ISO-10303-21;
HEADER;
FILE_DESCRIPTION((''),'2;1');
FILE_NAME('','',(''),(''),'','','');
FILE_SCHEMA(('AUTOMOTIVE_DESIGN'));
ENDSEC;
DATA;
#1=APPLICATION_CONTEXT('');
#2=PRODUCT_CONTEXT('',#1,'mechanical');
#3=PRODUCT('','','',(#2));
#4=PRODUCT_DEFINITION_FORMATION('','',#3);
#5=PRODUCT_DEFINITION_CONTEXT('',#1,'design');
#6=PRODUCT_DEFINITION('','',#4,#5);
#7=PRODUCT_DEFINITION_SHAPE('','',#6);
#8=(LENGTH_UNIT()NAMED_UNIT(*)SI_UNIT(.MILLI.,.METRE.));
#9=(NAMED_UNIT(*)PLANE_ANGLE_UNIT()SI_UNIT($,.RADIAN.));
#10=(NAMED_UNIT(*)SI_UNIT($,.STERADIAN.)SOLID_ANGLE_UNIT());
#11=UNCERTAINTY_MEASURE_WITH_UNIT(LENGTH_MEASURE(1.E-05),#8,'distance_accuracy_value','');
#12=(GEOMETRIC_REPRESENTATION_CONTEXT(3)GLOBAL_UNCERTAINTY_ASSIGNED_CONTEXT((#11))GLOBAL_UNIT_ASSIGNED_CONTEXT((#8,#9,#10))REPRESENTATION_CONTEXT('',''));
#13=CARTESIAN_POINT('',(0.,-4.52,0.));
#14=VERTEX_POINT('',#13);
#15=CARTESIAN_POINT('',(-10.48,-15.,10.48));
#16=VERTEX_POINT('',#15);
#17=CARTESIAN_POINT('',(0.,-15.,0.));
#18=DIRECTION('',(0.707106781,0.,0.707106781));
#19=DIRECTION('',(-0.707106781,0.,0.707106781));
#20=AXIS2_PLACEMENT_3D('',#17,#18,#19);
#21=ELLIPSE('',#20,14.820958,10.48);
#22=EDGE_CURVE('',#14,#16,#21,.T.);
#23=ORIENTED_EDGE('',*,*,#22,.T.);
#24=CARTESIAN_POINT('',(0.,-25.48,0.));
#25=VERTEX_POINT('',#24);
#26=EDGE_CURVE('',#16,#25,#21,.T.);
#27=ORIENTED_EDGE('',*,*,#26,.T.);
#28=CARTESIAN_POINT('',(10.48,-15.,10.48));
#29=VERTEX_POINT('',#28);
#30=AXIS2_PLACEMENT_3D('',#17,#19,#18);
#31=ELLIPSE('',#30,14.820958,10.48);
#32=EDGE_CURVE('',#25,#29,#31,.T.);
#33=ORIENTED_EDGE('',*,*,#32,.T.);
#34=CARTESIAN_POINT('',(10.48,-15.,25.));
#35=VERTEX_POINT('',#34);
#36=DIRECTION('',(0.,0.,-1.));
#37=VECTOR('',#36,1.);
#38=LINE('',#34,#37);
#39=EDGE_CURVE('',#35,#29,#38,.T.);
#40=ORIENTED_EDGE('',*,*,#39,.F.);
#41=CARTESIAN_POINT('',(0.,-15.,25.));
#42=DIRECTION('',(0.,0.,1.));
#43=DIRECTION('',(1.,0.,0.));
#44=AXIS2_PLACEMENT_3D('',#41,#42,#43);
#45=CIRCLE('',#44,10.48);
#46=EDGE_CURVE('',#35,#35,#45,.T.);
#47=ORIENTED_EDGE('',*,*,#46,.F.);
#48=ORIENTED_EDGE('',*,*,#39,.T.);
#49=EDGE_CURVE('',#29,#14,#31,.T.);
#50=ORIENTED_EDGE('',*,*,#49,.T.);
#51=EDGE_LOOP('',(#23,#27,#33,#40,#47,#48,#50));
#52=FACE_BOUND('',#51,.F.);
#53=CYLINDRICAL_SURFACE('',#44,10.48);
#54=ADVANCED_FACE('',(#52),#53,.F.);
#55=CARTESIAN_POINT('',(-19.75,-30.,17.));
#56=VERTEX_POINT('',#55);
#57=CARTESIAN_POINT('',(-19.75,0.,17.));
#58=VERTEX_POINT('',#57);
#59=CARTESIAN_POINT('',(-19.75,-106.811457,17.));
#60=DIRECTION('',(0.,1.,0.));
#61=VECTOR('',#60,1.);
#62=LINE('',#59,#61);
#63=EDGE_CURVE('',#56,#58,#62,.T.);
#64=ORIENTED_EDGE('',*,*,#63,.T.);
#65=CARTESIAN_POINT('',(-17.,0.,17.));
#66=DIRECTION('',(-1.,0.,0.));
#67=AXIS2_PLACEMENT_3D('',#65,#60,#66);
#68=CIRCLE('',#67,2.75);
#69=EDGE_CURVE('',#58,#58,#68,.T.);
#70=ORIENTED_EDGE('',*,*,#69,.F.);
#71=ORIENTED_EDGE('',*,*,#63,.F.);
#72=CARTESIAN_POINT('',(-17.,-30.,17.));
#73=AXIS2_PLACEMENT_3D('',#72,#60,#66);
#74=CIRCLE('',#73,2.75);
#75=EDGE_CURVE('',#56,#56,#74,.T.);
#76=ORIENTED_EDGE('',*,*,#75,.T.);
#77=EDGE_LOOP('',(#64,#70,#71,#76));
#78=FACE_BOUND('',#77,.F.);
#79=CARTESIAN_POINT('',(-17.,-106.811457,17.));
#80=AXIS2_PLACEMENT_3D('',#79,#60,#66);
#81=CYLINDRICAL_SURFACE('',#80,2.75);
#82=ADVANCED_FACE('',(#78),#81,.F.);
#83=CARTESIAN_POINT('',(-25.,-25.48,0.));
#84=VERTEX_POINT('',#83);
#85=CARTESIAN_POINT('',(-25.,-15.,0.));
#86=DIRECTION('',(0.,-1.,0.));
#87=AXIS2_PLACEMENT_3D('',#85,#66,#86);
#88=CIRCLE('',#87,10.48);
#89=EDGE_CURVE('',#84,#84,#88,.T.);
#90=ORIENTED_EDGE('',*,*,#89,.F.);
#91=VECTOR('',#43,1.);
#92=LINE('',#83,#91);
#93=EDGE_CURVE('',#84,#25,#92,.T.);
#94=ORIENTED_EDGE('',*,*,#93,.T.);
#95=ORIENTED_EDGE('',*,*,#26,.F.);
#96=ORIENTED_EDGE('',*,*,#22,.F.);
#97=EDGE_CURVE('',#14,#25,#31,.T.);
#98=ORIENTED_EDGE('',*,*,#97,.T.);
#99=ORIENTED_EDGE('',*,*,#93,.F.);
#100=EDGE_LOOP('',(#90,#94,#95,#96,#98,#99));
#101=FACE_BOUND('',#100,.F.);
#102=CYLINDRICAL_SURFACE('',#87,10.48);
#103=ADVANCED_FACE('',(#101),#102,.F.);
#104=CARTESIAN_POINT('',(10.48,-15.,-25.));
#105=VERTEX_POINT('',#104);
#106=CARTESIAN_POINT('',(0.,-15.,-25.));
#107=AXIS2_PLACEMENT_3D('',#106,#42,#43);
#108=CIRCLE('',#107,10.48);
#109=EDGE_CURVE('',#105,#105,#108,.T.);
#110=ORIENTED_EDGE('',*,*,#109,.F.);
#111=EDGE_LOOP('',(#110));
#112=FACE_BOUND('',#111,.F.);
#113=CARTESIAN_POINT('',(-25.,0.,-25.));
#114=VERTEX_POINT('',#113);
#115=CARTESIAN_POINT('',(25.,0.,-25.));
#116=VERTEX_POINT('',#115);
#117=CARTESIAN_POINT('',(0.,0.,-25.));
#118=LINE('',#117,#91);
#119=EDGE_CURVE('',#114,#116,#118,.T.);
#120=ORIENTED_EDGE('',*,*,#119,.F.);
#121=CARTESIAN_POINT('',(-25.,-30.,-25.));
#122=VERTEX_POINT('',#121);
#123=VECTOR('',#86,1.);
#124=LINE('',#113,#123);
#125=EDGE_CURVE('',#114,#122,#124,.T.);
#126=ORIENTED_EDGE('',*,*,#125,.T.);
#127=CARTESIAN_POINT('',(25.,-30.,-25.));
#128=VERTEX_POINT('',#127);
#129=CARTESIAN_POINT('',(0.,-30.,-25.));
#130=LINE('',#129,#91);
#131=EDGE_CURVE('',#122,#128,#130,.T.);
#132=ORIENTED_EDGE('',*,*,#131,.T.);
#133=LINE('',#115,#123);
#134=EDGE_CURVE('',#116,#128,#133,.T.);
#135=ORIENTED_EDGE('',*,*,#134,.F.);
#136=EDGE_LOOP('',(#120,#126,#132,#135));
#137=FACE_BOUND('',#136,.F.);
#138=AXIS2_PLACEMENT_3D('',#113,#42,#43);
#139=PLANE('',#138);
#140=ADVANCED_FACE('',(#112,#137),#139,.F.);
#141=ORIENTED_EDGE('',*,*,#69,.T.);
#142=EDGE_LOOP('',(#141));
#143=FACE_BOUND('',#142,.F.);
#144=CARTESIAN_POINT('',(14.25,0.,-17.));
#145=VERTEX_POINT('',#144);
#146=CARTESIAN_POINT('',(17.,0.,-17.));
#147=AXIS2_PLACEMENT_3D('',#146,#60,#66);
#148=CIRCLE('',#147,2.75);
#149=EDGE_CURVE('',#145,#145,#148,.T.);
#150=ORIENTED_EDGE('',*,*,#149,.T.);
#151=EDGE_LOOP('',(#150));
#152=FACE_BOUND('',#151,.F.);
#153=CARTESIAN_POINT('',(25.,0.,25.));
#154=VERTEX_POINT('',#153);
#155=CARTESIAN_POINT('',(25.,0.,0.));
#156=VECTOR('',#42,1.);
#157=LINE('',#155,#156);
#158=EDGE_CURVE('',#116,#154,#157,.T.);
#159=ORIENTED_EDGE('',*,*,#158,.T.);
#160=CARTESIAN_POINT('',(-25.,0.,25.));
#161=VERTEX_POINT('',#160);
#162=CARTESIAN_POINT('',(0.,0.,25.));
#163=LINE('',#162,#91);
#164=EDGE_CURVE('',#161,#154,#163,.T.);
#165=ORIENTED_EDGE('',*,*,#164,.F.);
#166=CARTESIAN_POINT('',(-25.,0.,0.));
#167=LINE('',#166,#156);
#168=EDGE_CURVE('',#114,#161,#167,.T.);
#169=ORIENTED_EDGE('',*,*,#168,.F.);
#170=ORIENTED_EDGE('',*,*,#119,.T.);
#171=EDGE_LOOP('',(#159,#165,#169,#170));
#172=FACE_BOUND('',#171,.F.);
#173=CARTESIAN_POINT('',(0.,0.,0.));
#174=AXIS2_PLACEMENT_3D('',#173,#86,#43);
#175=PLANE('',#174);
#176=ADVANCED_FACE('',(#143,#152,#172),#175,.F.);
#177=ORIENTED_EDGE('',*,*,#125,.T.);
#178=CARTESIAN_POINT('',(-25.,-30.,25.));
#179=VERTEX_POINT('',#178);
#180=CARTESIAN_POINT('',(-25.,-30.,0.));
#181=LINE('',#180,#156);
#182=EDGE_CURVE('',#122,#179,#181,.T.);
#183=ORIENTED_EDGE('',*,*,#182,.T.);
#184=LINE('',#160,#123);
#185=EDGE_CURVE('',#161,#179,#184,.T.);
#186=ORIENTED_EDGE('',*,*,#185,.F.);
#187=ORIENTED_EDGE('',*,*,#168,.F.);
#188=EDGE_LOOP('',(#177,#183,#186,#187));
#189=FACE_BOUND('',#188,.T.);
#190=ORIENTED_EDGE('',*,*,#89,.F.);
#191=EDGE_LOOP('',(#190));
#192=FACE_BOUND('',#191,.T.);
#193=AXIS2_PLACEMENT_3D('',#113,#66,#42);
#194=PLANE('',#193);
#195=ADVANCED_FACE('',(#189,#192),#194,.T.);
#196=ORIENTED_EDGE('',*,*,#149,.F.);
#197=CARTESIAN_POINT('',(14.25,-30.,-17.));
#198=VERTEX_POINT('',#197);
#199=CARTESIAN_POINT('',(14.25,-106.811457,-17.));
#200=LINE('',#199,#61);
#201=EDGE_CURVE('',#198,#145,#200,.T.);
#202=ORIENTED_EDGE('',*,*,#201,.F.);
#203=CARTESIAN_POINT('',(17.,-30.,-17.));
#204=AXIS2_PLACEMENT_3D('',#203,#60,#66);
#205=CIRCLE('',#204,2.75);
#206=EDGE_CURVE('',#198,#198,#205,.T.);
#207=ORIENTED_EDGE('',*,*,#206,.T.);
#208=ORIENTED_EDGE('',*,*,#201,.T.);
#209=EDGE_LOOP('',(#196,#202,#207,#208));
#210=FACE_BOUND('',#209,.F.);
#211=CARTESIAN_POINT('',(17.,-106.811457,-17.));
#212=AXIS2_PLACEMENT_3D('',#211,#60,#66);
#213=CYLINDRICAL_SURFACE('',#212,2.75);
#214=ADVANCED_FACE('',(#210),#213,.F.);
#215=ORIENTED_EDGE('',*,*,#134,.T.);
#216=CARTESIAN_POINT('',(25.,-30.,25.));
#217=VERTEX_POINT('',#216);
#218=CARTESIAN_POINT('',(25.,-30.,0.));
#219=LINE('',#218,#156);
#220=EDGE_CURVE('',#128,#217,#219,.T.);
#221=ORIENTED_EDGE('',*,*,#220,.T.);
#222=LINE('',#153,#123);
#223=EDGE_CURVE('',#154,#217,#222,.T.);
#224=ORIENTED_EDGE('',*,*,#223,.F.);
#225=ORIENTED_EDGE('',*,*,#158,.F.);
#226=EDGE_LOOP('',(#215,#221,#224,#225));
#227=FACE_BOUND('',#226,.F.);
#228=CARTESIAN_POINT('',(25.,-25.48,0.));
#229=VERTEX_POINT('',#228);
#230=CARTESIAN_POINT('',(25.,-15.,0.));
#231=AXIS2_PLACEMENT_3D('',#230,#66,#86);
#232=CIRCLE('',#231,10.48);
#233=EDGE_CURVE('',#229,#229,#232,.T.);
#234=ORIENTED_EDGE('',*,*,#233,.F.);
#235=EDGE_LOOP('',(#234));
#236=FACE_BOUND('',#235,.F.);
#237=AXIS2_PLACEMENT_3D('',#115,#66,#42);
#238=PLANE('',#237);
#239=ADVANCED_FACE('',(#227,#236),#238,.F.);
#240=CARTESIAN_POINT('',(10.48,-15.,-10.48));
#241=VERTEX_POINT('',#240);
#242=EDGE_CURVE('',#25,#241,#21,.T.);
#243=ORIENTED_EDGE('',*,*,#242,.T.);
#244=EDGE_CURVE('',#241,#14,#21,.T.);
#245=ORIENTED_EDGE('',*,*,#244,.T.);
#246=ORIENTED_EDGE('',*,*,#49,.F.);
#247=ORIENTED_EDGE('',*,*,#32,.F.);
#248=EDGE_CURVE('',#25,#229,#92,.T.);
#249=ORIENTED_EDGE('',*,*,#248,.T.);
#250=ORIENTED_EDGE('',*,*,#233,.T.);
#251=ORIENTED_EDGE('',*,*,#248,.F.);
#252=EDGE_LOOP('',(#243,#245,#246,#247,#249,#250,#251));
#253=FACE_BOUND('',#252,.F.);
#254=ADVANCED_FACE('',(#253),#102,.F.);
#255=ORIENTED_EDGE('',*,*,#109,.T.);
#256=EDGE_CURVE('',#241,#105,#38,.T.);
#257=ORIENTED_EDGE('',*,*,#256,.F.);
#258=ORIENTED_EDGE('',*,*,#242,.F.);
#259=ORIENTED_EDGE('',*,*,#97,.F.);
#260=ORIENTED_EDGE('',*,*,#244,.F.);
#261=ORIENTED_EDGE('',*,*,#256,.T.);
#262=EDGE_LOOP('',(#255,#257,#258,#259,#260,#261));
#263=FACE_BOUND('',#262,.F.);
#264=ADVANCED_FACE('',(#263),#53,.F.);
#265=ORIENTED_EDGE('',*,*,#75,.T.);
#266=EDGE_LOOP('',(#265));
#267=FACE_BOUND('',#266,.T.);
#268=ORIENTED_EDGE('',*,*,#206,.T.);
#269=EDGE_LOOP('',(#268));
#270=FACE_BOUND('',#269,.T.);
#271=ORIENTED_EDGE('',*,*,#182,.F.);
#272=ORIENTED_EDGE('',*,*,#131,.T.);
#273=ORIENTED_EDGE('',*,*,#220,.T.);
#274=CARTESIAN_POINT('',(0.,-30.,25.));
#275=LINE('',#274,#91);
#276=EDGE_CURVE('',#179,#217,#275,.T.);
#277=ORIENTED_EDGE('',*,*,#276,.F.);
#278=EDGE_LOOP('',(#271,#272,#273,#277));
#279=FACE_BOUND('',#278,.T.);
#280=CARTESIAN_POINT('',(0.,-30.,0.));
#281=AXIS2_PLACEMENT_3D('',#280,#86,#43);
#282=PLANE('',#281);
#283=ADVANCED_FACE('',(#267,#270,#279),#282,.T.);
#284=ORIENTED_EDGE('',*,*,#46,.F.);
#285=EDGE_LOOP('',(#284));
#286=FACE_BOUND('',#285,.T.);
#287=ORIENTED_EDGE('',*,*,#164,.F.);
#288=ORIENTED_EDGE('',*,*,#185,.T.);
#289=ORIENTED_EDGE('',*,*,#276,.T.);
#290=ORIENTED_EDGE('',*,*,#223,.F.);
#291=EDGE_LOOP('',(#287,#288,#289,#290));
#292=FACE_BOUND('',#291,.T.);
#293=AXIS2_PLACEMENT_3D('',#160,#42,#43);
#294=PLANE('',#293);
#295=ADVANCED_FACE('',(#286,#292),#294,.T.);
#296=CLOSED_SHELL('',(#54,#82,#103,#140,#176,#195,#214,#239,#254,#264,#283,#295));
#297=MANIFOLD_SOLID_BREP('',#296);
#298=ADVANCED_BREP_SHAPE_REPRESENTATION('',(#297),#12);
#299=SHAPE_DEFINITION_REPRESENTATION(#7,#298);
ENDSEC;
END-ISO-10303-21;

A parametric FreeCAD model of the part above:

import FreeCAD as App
import Part
import Sketcher
from FreeCAD import Vector


def add_polygon(sketch, points):
    """Adds a closed chain of lines whose ends are joined by coincident constraints."""
    first, n = sketch.GeometryCount, len(points)
    for a, b in zip(points, points[1:] + points[:1]):
        sketch.addGeometry(Part.LineSegment(App.Vector(*a, 0), App.Vector(*b, 0)), False)
    for i in range(n):
        sketch.addConstraint(Sketcher.Constraint("Coincident", first + i, 2, first + (i + 1) % n, 1))

doc = App.newDocument("Part")
body = doc.addObject("PartDesign::Body", "Body")

# Sketch on XZ plane
sketch1 = body.newObject("Sketcher::SketchObject", "Sketch")
sketch1.AttachmentSupport = (doc.getObject("XZ_Plane"), [""])
sketch1.MapMode = "FlatFace"
add_polygon(sketch1, [(-25, 25), (-25, -25), (25, -25), (25, 25)])  # lines 0-3
sketch1.addConstraint([
    Sketcher.Constraint("Vertical", 0),
    Sketcher.Constraint("Horizontal", 1),
    Sketcher.Constraint("Vertical", 2),
    Sketcher.Constraint("Horizontal", 3),
    Sketcher.Constraint("Symmetric", 0, 2, 2, 2, -1, 1),
    Sketcher.Constraint("Equal", 3, 0),
    Sketcher.Constraint("DistanceX", 1, 1, 1, 2, 50.0),
])
pad1 = body.newObject("PartDesign::Pad", "Pad")
pad1.Profile = sketch1
pad1.Length = 30

# Sketch on XZ plane
sketch2 = body.newObject("Sketcher::SketchObject", "Sketch001")
sketch2.AttachmentSupport = (doc.getObject("XZ_Plane"), [""])
sketch2.MapMode = "FlatFace"
sketch2.AttachmentOffset = App.Placement(Vector(0, 0, 30), App.Rotation())
sketch2.addGeometry([
    Part.Circle(Vector(-17, 17, 0), Vector(0, 0, 1), 2.8),
    Part.Circle(Vector(17, -17, 0), Vector(0, 0, 1), 2.8),
], False)
sketch2.addConstraint([
    Sketcher.Constraint("Equal", 0, 1),
    Sketcher.Constraint("Symmetric", 0, 3, 1, 3, -1, 1),
    Sketcher.Constraint("Diameter", 0, 5.5),
    Sketcher.Constraint("DistanceX", 0, 3, -1, 1, 17.0),
    Sketcher.Constraint("DistanceY", -1, 1, 0, 3, 17.0),
])
doc.recompute()
hole = body.newObject("PartDesign::Hole", "Hole")
hole.Profile = sketch2
hole.ThreadType = "None"
hole.Diameter = 5.5
hole.DepthType = "ThroughAll"

# Sketch on XY plane
sketch3 = body.newObject("Sketcher::SketchObject", "Sketch002")
sketch3.AttachmentSupport = (doc.getObject("XY_Plane"), [""])
sketch3.MapMode = "FlatFace"
sketch3.AttachmentOffset = App.Placement(Vector(0, 0, 25), App.Rotation())
sketch3.addGeometry(Part.Circle(Vector(0, -15, 0), Vector(0, 0, 1), 10), False)
sketch3.addConstraint([
    Sketcher.Constraint("PointOnObject", 0, 3, -2),
    Sketcher.Constraint("Diameter", 0, 20.96),
    Sketcher.Constraint("DistanceY", 0, 3, -1, 1, 15.0),
])
pocket1 = body.newObject("PartDesign::Pocket", "Pocket")
pocket1.Profile = sketch3
pocket1.Type = "ThroughAll"

# Sketch on YZ plane
sketch4 = body.newObject("Sketcher::SketchObject", "Sketch003")
sketch4.AttachmentSupport = (doc.getObject("YZ_Plane"), [""])
sketch4.MapMode = "FlatFace"
sketch4.AttachmentOffset = App.Placement(Vector(0, 0, -25), App.Rotation())
sketch4.addGeometry(Part.Circle(Vector(-15, 0, 0), Vector(0, 0, 1), 10), False)
sketch4.addConstraint([
    Sketcher.Constraint("PointOnObject", 0, 3, -1),
    Sketcher.Constraint("Diameter", 0, 20.96),
    Sketcher.Constraint("DistanceX", 0, 3, -1, 1, 15.0),
])
pocket2 = body.newObject("PartDesign::Pocket", "Pocket001")
pocket2.Profile = sketch4
pocket2.Type = "ThroughAll"
pocket2.Reversed = True

doc.recompute()
